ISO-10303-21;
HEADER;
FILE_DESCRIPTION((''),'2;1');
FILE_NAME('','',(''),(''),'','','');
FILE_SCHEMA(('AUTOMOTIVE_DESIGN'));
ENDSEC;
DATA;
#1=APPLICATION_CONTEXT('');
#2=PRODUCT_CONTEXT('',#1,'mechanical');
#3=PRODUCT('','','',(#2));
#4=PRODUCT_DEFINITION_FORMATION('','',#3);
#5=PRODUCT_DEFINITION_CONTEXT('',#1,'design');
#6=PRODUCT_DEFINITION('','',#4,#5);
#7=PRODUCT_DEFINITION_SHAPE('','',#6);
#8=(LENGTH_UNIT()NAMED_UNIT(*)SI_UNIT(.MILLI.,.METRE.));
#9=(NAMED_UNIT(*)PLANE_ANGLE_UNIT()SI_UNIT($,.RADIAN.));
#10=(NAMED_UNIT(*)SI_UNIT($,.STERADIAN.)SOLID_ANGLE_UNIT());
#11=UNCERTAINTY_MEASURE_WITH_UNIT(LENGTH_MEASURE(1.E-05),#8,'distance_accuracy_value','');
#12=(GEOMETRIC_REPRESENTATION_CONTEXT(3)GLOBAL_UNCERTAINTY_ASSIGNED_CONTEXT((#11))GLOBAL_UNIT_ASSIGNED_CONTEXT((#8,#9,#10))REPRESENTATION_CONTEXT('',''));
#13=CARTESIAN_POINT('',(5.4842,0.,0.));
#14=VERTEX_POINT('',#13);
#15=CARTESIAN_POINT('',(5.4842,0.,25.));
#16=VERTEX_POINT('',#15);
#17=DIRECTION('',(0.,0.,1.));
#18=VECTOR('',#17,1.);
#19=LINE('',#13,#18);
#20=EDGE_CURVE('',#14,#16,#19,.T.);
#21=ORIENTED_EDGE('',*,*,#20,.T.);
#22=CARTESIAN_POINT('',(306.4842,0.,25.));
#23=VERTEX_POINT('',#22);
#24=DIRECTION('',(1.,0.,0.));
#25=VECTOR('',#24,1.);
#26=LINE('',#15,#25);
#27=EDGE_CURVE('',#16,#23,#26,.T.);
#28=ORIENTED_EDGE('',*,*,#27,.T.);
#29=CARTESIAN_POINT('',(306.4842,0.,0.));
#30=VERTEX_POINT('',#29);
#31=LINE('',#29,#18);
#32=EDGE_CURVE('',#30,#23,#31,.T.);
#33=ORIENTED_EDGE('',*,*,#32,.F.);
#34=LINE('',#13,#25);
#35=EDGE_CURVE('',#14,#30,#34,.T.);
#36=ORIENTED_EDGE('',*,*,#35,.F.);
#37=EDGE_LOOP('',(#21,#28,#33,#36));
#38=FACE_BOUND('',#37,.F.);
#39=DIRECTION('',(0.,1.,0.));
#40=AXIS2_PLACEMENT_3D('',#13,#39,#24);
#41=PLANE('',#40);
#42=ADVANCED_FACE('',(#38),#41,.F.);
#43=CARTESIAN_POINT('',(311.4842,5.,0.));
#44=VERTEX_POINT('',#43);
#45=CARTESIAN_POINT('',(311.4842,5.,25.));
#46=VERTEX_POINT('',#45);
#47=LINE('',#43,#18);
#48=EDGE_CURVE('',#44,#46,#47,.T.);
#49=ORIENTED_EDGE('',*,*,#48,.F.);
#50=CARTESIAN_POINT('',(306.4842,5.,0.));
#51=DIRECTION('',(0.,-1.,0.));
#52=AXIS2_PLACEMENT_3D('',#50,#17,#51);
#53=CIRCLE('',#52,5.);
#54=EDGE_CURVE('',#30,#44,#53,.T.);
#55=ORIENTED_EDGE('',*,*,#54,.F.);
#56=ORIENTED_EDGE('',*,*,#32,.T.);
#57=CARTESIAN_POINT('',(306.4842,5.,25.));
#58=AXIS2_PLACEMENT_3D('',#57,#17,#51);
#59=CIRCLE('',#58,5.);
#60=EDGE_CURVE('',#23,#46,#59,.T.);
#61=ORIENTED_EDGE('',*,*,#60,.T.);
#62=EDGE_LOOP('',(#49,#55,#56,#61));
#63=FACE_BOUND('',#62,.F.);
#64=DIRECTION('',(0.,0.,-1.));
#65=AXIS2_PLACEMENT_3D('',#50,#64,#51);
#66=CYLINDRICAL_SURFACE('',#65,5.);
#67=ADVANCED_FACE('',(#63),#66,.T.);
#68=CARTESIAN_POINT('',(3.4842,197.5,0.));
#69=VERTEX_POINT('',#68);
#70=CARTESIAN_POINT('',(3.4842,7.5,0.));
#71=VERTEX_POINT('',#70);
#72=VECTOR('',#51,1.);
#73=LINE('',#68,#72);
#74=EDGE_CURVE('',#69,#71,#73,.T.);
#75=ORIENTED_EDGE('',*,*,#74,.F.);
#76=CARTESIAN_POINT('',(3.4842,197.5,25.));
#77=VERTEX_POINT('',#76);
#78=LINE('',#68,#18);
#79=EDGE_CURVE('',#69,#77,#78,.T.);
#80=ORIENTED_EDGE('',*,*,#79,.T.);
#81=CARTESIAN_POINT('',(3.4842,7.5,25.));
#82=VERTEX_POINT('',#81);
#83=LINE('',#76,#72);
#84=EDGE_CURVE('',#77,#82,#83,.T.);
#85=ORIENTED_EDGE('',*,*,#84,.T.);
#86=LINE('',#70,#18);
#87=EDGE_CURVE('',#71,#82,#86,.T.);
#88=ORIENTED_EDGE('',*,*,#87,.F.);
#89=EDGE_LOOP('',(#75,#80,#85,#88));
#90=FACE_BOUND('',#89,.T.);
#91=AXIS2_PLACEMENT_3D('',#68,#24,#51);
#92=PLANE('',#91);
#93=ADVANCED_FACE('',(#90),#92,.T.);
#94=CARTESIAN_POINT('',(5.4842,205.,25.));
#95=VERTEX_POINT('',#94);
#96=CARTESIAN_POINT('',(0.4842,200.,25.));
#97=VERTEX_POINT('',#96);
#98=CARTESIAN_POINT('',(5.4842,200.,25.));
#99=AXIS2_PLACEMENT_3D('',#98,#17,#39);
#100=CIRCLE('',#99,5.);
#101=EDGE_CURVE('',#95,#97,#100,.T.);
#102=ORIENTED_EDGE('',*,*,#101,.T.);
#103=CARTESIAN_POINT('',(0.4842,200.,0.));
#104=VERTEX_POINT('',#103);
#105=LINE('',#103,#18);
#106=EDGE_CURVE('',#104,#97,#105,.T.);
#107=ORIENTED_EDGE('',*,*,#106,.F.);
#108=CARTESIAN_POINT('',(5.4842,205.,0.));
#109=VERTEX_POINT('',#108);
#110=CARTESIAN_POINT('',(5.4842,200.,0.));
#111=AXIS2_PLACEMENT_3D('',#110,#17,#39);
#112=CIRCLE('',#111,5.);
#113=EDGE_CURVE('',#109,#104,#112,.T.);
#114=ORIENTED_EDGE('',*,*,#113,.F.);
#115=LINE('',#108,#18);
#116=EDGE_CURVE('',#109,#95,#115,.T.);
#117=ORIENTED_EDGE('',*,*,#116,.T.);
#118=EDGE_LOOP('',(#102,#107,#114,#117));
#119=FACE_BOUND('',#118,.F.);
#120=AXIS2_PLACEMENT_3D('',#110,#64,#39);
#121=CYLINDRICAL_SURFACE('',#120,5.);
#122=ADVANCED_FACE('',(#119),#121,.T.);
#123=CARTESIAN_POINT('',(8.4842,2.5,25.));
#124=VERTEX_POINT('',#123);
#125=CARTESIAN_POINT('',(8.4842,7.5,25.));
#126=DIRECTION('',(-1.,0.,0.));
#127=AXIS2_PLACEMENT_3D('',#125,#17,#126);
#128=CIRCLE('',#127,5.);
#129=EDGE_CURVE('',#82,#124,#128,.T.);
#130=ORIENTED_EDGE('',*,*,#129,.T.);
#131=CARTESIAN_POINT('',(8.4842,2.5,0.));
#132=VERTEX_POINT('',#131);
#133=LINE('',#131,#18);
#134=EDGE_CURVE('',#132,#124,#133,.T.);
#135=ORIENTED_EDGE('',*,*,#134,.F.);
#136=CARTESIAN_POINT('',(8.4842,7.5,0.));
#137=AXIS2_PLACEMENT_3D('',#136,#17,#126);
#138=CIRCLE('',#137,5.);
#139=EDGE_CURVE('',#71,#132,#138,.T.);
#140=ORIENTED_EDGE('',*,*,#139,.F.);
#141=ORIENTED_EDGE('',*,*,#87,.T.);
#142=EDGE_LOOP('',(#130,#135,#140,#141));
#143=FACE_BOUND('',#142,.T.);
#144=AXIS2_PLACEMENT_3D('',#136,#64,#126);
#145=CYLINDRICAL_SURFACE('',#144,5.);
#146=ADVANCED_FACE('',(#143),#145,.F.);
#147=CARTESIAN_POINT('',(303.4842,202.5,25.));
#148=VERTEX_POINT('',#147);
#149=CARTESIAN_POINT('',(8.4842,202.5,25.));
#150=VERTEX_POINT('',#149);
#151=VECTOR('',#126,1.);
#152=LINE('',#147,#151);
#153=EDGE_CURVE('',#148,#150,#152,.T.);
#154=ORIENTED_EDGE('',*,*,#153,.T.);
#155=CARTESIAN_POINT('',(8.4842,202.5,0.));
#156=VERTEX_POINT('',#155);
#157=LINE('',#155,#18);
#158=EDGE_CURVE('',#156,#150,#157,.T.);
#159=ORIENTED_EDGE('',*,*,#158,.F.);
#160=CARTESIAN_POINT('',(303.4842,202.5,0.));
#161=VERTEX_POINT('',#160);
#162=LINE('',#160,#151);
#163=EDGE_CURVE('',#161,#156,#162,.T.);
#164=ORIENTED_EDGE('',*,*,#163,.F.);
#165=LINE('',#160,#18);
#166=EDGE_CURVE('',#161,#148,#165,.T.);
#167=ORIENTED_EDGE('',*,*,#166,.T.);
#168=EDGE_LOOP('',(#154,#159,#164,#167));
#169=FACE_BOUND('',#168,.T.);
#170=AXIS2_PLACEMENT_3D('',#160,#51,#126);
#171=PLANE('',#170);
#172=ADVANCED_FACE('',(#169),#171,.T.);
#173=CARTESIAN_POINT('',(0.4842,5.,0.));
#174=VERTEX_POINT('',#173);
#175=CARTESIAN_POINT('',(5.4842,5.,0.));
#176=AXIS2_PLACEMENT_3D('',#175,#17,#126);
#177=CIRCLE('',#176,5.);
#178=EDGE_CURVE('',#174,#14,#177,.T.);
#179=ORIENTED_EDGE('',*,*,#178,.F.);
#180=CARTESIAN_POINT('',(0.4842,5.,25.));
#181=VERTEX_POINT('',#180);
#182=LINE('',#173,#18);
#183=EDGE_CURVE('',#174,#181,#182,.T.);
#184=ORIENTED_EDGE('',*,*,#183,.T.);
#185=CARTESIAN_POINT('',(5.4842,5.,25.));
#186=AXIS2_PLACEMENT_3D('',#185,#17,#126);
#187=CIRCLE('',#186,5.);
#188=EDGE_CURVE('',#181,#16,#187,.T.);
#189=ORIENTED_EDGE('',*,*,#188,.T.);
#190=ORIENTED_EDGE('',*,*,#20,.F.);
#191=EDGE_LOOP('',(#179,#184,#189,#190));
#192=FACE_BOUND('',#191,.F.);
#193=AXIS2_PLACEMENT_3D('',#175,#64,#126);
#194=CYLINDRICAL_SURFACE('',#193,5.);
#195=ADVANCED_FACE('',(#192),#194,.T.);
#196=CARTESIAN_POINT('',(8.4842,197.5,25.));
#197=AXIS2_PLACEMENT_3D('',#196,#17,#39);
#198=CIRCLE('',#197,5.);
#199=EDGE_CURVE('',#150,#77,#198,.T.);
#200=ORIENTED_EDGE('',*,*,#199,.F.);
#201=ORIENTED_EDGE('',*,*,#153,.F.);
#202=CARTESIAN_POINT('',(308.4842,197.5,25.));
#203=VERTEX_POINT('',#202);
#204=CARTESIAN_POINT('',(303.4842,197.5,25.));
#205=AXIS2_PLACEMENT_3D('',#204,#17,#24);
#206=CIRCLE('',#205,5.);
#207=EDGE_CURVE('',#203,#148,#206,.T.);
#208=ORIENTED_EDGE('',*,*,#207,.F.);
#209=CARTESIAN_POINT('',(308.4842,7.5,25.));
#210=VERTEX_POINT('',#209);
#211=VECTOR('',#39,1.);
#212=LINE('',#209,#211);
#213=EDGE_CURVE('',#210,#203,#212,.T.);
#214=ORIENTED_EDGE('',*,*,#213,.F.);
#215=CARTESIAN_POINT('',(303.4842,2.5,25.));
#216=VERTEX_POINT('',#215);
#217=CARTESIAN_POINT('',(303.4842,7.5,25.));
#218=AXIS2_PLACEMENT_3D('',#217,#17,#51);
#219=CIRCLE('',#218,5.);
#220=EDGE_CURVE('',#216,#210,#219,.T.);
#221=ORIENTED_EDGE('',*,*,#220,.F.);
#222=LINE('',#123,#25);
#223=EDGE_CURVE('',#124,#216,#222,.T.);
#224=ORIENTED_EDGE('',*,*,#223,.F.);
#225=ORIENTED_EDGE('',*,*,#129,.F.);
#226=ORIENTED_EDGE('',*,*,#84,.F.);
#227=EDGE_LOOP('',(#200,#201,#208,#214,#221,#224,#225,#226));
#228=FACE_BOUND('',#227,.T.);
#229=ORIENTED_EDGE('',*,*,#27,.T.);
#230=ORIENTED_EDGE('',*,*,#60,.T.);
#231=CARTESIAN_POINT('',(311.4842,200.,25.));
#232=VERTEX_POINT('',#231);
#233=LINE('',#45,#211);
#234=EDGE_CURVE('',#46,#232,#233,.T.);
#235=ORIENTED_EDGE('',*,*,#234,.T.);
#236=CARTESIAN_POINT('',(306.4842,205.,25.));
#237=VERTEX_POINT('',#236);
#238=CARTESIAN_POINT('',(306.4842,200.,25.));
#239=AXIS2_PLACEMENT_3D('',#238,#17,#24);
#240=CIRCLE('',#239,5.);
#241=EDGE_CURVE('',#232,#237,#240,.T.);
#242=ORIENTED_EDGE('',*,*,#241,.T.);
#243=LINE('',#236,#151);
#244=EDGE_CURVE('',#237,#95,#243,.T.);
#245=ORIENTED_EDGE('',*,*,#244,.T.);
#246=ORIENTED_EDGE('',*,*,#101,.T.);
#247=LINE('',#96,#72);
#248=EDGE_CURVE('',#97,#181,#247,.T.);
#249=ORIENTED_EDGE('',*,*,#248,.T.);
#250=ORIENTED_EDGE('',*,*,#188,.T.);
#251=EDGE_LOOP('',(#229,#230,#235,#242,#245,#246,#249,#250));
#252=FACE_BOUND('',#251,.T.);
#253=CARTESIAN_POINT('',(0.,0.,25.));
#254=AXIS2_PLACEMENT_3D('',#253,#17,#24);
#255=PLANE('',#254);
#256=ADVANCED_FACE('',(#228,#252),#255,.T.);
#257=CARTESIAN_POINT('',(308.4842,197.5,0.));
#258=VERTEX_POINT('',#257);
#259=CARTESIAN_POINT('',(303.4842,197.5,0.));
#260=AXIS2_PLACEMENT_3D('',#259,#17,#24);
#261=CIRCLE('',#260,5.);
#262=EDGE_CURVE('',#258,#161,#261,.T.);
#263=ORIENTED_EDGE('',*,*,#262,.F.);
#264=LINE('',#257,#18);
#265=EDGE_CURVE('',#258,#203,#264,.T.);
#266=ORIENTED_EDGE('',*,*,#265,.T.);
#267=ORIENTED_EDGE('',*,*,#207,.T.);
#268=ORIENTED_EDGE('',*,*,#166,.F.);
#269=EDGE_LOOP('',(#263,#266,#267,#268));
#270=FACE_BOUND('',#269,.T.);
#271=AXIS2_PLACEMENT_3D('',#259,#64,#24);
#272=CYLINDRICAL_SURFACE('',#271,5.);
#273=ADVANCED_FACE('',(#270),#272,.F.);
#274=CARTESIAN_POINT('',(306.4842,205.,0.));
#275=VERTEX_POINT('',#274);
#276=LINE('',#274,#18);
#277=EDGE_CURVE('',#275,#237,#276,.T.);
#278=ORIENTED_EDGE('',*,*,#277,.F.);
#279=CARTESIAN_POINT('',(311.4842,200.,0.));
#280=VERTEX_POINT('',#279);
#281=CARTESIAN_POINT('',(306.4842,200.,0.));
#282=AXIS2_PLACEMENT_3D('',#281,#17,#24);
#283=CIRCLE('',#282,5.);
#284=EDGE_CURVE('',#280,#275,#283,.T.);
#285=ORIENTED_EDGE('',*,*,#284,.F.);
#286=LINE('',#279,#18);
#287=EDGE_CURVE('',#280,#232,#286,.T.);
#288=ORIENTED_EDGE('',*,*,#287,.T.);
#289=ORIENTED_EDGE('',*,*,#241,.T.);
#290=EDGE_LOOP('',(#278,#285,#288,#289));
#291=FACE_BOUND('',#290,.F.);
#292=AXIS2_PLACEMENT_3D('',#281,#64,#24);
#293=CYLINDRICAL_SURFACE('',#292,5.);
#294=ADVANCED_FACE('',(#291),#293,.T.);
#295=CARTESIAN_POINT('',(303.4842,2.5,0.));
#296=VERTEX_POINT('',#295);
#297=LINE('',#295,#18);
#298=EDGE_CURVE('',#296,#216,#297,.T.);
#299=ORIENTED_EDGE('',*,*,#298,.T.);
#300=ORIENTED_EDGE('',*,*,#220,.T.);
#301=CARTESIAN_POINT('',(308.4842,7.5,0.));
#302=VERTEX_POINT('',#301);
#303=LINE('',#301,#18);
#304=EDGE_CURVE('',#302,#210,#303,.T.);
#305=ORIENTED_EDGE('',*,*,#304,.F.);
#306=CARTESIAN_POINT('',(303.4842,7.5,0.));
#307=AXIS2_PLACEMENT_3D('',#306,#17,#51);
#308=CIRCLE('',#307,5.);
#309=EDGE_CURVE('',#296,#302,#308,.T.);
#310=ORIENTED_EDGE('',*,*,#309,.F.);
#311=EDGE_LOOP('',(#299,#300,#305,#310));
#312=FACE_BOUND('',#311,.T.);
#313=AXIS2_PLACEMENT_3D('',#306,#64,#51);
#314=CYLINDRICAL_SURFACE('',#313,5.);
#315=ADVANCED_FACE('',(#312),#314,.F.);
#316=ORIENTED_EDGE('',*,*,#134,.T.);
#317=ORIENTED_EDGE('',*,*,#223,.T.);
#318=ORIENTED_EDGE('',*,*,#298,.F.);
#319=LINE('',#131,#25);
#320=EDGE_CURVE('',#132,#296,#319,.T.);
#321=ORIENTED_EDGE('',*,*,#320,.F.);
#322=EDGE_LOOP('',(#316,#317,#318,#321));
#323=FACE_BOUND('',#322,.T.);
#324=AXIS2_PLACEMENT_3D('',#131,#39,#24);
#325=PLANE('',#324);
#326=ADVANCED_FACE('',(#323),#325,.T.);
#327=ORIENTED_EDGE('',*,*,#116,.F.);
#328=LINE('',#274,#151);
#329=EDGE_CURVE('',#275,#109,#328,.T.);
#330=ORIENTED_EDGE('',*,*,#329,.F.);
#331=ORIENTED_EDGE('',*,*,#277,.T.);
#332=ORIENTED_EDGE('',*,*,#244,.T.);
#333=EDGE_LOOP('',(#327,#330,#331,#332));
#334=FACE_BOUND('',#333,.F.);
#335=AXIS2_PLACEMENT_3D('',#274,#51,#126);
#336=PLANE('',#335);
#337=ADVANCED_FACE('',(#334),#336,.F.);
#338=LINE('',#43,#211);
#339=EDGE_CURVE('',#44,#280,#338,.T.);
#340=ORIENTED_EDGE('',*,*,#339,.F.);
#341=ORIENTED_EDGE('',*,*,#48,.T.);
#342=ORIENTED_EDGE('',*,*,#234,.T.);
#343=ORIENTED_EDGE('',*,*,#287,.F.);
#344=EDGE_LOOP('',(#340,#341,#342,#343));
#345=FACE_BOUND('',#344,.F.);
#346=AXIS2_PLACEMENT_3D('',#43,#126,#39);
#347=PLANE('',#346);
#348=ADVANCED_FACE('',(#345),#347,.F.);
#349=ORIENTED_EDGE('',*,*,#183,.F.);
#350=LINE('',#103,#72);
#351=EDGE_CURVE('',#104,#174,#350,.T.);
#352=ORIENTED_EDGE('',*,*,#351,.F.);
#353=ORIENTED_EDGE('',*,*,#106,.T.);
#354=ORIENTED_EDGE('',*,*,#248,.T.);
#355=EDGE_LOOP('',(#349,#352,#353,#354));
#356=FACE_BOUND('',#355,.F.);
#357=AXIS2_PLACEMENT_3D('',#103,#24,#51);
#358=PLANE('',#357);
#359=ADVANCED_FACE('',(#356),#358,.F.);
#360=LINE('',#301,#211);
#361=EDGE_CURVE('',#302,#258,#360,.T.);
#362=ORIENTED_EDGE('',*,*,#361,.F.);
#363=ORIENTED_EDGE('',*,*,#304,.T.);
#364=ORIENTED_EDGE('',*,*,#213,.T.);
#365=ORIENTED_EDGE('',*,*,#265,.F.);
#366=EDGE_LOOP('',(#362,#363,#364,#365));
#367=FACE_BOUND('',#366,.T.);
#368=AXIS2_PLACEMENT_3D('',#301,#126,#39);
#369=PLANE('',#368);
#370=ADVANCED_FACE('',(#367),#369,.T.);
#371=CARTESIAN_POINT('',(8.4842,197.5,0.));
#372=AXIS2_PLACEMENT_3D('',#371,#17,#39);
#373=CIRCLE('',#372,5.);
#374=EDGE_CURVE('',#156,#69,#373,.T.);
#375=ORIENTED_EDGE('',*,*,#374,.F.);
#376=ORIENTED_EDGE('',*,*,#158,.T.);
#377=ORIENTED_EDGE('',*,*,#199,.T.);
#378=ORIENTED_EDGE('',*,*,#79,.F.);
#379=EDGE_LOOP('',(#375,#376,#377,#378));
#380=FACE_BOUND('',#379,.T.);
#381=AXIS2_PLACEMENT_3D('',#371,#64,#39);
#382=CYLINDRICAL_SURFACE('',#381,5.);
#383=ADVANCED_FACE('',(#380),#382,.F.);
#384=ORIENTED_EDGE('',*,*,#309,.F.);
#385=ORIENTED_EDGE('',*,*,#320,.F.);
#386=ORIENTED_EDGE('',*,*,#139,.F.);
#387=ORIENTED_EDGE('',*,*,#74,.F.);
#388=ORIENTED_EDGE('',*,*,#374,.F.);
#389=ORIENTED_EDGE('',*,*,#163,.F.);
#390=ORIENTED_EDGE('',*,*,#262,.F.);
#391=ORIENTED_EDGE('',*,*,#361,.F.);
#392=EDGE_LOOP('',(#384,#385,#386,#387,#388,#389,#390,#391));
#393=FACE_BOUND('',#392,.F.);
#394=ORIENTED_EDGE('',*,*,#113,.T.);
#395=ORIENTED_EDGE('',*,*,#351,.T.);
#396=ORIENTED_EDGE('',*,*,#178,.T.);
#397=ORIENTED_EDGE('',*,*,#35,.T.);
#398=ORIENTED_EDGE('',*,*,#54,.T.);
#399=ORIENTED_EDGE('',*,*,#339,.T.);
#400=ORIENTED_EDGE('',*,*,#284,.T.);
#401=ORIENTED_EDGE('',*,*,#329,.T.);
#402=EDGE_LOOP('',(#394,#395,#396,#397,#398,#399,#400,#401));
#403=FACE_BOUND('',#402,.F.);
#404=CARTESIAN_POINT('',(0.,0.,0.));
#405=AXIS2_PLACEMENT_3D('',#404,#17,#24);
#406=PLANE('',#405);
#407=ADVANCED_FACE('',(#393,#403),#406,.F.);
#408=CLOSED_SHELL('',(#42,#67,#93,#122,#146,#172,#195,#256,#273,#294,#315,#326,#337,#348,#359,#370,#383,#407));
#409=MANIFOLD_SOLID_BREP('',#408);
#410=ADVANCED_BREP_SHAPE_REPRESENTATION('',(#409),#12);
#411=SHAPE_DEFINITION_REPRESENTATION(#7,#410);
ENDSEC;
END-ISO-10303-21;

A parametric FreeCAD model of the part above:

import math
import FreeCAD as App
import Part
import Sketcher
from FreeCAD import Vector

doc = App.newDocument("Part")
body = doc.addObject("PartDesign::Body", "Body")

# Sketch on XY plane
sketch1 = body.newObject("Sketcher::SketchObject", "Sketch")
sketch1.AttachmentSupport = (doc.getObject("XY_Plane"), [""])
sketch1.MapMode = "FlatFace"
sketch1.addGeometry(Part.ArcOfCircle(Part.Circle(Vector(5, 5, 0), Vector(0, 0, 1), 5), math.radians(180), math.radians(270)), False)
sketch1.addGeometry(Part.LineSegment(Vector(5, 0, 0), Vector(306, 0, 0)), False)
sketch1.addGeometry(Part.ArcOfCircle(Part.Circle(Vector(306, 5, 0), Vector(0, 0, 1), 5), math.radians(-90), math.radians(0)), False)
sketch1.addGeometry(Part.LineSegment(Vector(311, 5, 0), Vector(311, 200, 0)), False)
sketch1.addGeometry(Part.ArcOfCircle(Part.Circle(Vector(306, 200, 0), Vector(0, 0, 1), 5), math.radians(0), math.radians(90)), False)
sketch1.addGeometry(Part.LineSegment(Vector(306, 205, 0), Vector(5, 205, 0)), False)
sketch1.addGeometry(Part.ArcOfCircle(Part.Circle(Vector(5, 200, 0), Vector(0, 0, 1), 5), math.radians(90), math.radians(180)), False)
sketch1.addGeometry(Part.LineSegment(Vector(0, 200, 0), Vector(0, 5, 0)), False)
sketch1.addGeometry(Part.LineSegment(Vector(303, 2, 0), Vector(8, 2, 0)), False)
sketch1.addGeometry(Part.ArcOfCircle(Part.Circle(Vector(8, 8, 0), Vector(0, 0, 1), 5), math.radians(180), math.radians(270)), False)
sketch1.addGeometry(Part.LineSegment(Vector(3, 8, 0), Vector(3, 198, 0)), False)
sketch1.addGeometry(Part.ArcOfCircle(Part.Circle(Vector(8, 198, 0), Vector(0, 0, 1), 5), math.radians(90), math.radians(180)), False)
sketch1.addGeometry(Part.LineSegment(Vector(8, 202, 0), Vector(303, 202, 0)), False)
sketch1.addGeometry(Part.ArcOfCircle(Part.Circle(Vector(303, 198, 0), Vector(0, 0, 1), 5), math.radians(0), math.radians(90)), False)
sketch1.addGeometry(Part.LineSegment(Vector(308, 198, 0), Vector(308, 8, 0)), False)
sketch1.addGeometry(Part.ArcOfCircle(Part.Circle(Vector(303, 8, 0), Vector(0, 0, 1), 5), math.radians(-90), math.radians(0)), False)
sketch1.addConstraint(Sketcher.Constraint("Tangent", 0, 2, 1, 1))
sketch1.addConstraint(Sketcher.Constraint("Tangent", 1, 2, 2, 1))
sketch1.addConstraint(Sketcher.Constraint("Tangent", 2, 2, 3, 1))
sketch1.addConstraint(Sketcher.Constraint("Tangent", 3, 2, 4, 1))
sketch1.addConstraint(Sketcher.Constraint("Tangent", 4, 2, 5, 1))
sketch1.addConstraint(Sketcher.Constraint("Tangent", 5, 2, 6, 1))
sketch1.addConstraint(Sketcher.Constraint("Tangent", 6, 2, 7, 1))
sketch1.addConstraint(Sketcher.Constraint("Tangent", 7, 2, 0, 1))
sketch1.addConstraint(Sketcher.Constraint("Tangent", 8, 2, 9, 2))
sketch1.addConstraint(Sketcher.Constraint("Tangent", 9, 1, 10, 1))
sketch1.addConstraint(Sketcher.Constraint("Tangent", 10, 2, 11, 2))
sketch1.addConstraint(Sketcher.Constraint("Tangent", 11, 1, 12, 1))
sketch1.addConstraint(Sketcher.Constraint("Tangent", 12, 2, 13, 2))
sketch1.addConstraint(Sketcher.Constraint("Tangent", 13, 1, 14, 1))
sketch1.addConstraint(Sketcher.Constraint("Tangent", 14, 2, 15, 2))
sketch1.addConstraint(Sketcher.Constraint("Tangent", 15, 1, 8, 1))
sketch1.addConstraint(Sketcher.Constraint("Horizontal", 1))
sketch1.addConstraint(Sketcher.Constraint("Vertical", 3))
sketch1.addConstraint(Sketcher.Constraint("Horizontal", 5))
sketch1.addConstraint(Sketcher.Constraint("Vertical", 7))
sketch1.addConstraint(Sketcher.Constraint("Horizontal", 8))
sketch1.addConstraint(Sketcher.Constraint("Vertical", 10))
sketch1.addConstraint(Sketcher.Constraint("Horizontal", 12))
sketch1.addConstraint(Sketcher.Constraint("Vertical", 14))
sketch1.addConstraint(Sketcher.Constraint("Equal", 0, 2))
sketch1.addConstraint(Sketcher.Constraint("Equal", 2, 4))
sketch1.addConstraint(Sketcher.Constraint("Equal", 4, 6))
sketch1.addConstraint(Sketcher.Constraint("Equal", 6, 9))
sketch1.addConstraint(Sketcher.Constraint("Equal", 9, 11))
sketch1.addConstraint(Sketcher.Constraint("Equal", 11, 13))
sketch1.addConstraint(Sketcher.Constraint("Equal", 13, 15))
sketch1.addConstraint(Sketcher.Constraint("PointOnObject", 0, 2, -1))
sketch1.addConstraint(Sketcher.Constraint("Radius", 0, 5.0))
sketch1.addConstraint(Sketcher.Constraint("DistanceY", -1, 1, 4, 3, 200.0))
sketch1.addConstraint(Sketcher.Constraint("DistanceX", 0, 3, 9, 3, 3.0))
sketch1.addConstraint(Sketcher.Constraint("DistanceX", 13, 3, 4, 3, 3.0))
sketch1.addConstraint(Sketcher.Constraint("DistanceY", -1, 1, 8, 2, 2.5))
sketch1.addConstraint(Sketcher.Constraint("DistanceY", 11, 3, 6, 3, 2.5))
sketch1.addConstraint(Sketcher.Constraint("DistanceX", 1, 1, 1, 2, 301.0))
sketch1.addConstraint(Sketcher.Constraint("DistanceX", -1, 1, 0, 3, 5.4842))
pad1 = body.newObject("PartDesign::Pad", "Pad")
pad1.Profile = sketch1
pad1.Length = 25

doc.recompute()
